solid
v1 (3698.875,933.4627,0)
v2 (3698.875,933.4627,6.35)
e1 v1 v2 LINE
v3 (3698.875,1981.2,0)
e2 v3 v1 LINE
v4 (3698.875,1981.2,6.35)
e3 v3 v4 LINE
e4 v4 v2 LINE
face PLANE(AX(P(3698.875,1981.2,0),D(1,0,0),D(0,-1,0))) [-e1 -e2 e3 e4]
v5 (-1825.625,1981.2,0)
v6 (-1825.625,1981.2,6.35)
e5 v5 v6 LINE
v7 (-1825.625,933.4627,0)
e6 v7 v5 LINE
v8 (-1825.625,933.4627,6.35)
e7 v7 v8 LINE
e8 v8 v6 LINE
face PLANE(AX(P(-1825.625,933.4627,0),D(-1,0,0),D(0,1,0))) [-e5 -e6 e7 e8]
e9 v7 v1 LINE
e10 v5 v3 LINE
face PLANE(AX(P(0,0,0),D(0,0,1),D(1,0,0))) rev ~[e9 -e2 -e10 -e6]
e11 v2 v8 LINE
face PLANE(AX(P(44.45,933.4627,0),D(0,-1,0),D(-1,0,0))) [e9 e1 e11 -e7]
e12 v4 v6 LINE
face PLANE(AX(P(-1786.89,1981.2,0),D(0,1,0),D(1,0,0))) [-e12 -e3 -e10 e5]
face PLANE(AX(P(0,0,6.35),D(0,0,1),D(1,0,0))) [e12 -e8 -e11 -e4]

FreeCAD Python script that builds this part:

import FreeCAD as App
import Part
import Sketcher
Q = App.Units.Quantity

doc = App.newDocument("Part")
body = doc.addObject("PartDesign::Body", "Body")

sketch1 = doc.addObject("Sketcher::SketchObject", "Sketch")
body.addObject(sketch1)
sketch1.AttachmentSupport = (doc.XY_Plane, [""])
sketch1.MapMode = "FlatFace"
sketch1.addGeometry([
    Part.LineSegment(App.Vector(3698.875, 933.4627, 0), App.Vector(3698.875, 1981.2, 0)),
    Part.LineSegment(App.Vector(3698.875, 1981.2, 0), App.Vector(-1825.625, 1981.2, 0)),
    Part.LineSegment(App.Vector(-1825.625, 1981.2, 0), App.Vector(-1825.625, 933.4627, 0)),
    Part.LineSegment(App.Vector(-1825.625, 933.4627, 0), App.Vector(3698.875, 933.4627, 0)),
], False)
sketch1.addConstraint([
    Sketcher.Constraint("Coincident", 0, 2, 1, 1),
    Sketcher.Constraint("Coincident", 1, 2, 2, 1),
    Sketcher.Constraint("Coincident", 2, 2, 3, 1),
    Sketcher.Constraint("Coincident", 3, 2, 0, 1),
    Sketcher.Constraint("Vertical", 0),
    Sketcher.Constraint("Horizontal", 1),
    Sketcher.Constraint("Vertical", 2),
    Sketcher.Constraint("Horizontal", 3),
    Sketcher.Constraint("DistanceX", 1, 2, 1, 1, Q("217.5 in")),
    Sketcher.Constraint("DistanceY", -1, 1, 0, 2, Q("78 in")),
    Sketcher.Constraint("DistanceY", 0, 1, 0, 2, Q("41.2495 in")),
    Sketcher.Constraint("DistanceX", -1, 1, 0, 2, Q("145.625 in")),
])
pad1 = doc.addObject("PartDesign::Pad", "Pad")
body.addObject(pad1)
pad1.Profile = sketch1
pad1.Length = Q("0.25 in")

doc.recompute()
